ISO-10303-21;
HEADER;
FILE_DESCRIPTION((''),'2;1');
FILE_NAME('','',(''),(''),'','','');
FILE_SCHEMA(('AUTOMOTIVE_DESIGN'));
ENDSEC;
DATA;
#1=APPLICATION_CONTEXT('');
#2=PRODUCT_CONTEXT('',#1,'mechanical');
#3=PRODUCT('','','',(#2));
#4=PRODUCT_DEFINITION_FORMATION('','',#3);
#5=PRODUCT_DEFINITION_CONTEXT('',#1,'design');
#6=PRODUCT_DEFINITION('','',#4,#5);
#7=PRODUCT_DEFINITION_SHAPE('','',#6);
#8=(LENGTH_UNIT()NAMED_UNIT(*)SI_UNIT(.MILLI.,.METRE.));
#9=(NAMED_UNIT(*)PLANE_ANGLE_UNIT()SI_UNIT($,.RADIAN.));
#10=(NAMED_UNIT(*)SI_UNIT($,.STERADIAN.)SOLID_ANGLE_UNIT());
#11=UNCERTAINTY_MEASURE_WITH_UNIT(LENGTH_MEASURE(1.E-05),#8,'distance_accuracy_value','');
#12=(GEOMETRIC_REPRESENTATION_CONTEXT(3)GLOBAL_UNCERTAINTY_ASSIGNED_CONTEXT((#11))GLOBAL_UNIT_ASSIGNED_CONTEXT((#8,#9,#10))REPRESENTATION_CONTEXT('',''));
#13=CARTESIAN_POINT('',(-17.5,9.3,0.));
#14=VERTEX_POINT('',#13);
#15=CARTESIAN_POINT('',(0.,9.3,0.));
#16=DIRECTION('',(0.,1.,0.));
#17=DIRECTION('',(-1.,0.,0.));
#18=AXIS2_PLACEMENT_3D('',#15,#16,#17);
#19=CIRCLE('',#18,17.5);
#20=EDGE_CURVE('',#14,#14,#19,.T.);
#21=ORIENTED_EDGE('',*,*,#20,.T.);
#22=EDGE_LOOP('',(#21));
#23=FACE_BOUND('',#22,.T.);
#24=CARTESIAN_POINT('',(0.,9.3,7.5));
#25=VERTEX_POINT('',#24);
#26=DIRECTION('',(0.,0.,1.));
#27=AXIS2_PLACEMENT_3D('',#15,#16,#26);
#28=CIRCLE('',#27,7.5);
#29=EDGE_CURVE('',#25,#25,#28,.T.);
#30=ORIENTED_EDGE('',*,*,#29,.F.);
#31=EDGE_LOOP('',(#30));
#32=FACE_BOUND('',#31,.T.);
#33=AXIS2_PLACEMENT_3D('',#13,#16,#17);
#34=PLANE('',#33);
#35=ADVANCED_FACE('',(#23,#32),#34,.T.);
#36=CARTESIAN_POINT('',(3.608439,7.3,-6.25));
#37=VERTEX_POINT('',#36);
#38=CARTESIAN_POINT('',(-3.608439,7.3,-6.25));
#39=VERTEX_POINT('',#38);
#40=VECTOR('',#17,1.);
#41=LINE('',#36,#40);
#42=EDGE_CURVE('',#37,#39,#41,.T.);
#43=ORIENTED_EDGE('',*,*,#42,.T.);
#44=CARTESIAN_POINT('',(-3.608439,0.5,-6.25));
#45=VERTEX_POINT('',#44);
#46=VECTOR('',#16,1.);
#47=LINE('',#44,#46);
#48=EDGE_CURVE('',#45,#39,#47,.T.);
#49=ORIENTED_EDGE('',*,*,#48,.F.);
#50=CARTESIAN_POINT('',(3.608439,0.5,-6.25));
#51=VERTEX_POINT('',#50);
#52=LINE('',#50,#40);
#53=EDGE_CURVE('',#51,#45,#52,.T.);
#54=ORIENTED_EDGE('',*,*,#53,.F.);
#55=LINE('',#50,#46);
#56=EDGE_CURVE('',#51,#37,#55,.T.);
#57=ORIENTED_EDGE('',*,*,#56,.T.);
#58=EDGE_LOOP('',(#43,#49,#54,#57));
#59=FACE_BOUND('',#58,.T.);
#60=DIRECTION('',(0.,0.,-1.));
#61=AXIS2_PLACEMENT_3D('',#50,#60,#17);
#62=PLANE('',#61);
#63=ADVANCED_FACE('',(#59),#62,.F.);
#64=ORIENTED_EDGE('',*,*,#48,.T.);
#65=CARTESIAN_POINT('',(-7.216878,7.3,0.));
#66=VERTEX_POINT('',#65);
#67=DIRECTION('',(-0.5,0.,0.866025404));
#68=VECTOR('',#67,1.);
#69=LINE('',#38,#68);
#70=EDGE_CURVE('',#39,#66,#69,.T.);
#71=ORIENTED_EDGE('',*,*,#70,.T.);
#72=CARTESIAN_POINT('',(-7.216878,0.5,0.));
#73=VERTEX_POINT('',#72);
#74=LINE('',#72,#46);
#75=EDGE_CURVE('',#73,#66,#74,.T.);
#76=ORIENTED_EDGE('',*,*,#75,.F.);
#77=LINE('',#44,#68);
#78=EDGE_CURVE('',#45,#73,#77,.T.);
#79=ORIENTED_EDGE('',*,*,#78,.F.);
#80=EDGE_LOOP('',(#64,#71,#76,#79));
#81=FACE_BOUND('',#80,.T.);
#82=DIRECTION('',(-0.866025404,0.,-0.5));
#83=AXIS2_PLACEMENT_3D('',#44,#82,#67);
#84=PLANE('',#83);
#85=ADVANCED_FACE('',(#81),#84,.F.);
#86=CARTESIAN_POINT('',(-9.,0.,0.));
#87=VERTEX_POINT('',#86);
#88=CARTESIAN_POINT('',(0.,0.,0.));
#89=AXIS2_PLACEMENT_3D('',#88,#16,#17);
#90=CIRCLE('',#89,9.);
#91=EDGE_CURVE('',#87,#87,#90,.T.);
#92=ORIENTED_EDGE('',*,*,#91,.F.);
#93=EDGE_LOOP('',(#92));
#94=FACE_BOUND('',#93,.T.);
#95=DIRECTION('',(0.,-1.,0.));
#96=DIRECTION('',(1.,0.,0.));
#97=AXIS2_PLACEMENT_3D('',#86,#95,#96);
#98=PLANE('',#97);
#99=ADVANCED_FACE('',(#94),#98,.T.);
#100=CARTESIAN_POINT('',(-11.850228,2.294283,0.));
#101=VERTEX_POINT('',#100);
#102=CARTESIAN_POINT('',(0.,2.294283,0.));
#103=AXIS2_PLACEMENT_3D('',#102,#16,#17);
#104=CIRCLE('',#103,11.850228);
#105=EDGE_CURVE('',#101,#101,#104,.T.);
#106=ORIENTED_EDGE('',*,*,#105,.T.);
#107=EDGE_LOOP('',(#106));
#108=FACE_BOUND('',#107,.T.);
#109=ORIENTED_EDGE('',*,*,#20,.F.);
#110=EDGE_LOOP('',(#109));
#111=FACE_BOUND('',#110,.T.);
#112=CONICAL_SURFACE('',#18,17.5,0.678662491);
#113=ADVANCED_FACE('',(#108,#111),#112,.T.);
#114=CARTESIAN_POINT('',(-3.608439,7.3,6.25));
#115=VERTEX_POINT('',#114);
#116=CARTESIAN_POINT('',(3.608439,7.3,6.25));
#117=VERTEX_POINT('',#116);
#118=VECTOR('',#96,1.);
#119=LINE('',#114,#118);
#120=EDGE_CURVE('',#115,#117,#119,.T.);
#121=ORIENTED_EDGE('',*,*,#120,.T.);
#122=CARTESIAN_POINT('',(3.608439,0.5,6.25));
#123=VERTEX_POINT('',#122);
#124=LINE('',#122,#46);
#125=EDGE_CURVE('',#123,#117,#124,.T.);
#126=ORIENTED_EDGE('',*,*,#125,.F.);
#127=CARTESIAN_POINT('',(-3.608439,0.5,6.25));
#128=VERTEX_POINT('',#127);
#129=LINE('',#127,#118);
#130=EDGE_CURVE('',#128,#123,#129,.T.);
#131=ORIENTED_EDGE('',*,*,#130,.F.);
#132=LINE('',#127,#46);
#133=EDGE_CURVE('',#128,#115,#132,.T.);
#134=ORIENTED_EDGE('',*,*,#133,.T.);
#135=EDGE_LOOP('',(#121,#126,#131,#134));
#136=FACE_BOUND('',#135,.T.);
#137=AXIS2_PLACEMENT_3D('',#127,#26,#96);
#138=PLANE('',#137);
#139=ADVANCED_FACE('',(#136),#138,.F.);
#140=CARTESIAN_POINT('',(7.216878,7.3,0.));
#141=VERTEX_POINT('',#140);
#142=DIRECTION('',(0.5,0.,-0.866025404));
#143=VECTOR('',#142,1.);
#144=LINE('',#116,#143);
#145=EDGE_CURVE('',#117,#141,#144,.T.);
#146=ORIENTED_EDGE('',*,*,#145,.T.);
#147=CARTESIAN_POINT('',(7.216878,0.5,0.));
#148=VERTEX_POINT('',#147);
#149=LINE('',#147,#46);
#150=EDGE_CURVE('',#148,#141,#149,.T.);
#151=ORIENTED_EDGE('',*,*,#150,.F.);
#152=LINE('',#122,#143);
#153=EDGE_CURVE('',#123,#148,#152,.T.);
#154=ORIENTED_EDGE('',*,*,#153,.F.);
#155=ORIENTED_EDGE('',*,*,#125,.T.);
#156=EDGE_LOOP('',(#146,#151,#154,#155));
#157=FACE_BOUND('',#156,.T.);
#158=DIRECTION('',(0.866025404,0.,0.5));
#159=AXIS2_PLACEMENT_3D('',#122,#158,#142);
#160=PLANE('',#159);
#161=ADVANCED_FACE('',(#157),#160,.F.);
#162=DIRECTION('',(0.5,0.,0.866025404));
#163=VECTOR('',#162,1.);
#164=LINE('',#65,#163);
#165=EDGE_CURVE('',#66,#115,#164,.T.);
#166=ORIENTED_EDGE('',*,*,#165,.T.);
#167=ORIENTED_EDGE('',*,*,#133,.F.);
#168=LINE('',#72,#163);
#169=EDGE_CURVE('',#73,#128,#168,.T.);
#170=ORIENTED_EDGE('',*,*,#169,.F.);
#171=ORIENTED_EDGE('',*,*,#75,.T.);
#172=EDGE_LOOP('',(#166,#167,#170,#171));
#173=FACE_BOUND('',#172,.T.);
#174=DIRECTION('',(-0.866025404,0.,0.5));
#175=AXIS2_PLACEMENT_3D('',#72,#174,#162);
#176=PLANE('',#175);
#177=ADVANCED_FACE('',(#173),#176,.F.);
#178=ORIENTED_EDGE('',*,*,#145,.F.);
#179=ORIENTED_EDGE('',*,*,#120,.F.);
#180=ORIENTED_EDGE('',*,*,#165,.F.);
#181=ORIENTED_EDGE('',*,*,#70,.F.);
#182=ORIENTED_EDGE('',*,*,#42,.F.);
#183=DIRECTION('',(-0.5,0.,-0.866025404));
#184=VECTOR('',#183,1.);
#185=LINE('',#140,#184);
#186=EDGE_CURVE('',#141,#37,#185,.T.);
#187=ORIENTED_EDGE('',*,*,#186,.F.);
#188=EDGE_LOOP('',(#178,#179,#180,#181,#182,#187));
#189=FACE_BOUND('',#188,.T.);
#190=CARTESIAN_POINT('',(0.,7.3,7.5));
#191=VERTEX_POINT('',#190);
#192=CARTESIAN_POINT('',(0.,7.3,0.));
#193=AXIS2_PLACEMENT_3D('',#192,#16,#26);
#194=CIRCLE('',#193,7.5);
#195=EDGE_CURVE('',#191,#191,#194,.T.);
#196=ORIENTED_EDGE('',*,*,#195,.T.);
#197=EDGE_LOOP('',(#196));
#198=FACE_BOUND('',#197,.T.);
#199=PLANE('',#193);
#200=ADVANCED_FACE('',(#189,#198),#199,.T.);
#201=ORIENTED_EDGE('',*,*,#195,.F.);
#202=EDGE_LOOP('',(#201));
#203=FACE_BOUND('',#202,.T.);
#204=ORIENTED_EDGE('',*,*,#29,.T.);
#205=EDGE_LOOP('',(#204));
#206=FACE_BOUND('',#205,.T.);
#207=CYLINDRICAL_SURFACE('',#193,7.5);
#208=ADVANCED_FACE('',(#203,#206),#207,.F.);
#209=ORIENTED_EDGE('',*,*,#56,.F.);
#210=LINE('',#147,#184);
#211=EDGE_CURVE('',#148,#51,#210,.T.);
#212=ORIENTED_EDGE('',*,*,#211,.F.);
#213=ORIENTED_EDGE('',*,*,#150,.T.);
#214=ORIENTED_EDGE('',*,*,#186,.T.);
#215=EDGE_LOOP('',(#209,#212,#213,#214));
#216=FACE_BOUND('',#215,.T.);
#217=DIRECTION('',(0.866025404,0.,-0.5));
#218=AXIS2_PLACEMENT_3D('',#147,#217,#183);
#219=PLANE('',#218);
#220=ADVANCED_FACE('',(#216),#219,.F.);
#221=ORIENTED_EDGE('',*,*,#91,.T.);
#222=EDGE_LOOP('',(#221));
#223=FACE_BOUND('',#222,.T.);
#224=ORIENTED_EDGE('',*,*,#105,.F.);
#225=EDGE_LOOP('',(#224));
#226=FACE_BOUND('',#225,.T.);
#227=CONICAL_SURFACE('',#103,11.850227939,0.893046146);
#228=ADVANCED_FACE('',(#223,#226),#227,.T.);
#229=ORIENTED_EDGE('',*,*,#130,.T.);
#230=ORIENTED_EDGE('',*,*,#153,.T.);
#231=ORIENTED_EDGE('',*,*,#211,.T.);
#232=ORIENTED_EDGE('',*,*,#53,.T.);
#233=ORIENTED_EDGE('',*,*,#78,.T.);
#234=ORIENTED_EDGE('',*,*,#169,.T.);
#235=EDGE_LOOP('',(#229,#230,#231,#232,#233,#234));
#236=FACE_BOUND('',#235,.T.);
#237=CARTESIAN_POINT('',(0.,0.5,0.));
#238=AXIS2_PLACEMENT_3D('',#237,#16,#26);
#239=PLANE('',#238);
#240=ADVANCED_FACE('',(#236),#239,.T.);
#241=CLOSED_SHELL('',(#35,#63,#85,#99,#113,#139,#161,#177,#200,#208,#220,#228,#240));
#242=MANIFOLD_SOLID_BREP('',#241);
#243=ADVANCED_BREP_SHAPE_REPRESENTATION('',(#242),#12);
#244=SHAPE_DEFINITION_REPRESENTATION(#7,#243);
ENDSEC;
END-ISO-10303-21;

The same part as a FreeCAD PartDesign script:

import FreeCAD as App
import Part
import Sketcher
Q = App.Units.Quantity

doc = App.newDocument("Part")
params = doc.addObject("Spreadsheet::Sheet", "Params")
for row, (alias, value) in enumerate([
    ("sketch1_width", "9 mm"),
    ("sketch1_length", "9 mm"),
    ("sketch1_width2", "17.5 mm"),
    ("sketch1_height", "9.3 mm"),
    ("revolution_angle", "360 deg"),
    ("sketch2_diameter", "15 mm"),
    ("pocket1_length", "2 mm"),
    ("pocket2_length", "6.8 mm"),
], start=1):
    params.set(f"A{row}", alias)
    params.set(f"B{row}", "=" + value)
    params.setAlias(f"B{row}", alias)

body = doc.addObject("PartDesign::Body", "Body")

sketch1 = body.newObject("Sketcher::SketchObject", "Sketch")
sketch1.AttachmentSupport = (doc.getObject("XY_Plane"), [""])
sketch1.MapMode = "FlatFace"
sketch1.addGeometry([
    Part.LineSegment(App.Vector(0, 9.3, 0), App.Vector(-17.5, 9.3, 0)),
    Part.LineSegment(App.Vector(-17.5, 9.3, 0), App.Vector(-11.9, 2.3, 0)),
    Part.LineSegment(App.Vector(-11.9, 2.3, 0), App.Vector(-9, 0, 0)),
    Part.LineSegment(App.Vector(-9, 0, 0), App.Vector(0, 0, 0)),
    Part.LineSegment(App.Vector(0, 0, 0), App.Vector(0, 9.3, 0)),
], False)
sketch1.addConstraint([
    Sketcher.Constraint("Coincident", 0, 2, 1, 1),
    Sketcher.Constraint("Coincident", 1, 2, 2, 1),
    Sketcher.Constraint("Coincident", 2, 2, 3, 1),
    Sketcher.Constraint("Coincident", 3, 2, 4, 1),
    Sketcher.Constraint("Coincident", 4, 2, 0, 1),
    Sketcher.Constraint("Horizontal", 0),
    Sketcher.Constraint("Horizontal", 3),
    Sketcher.Constraint("Vertical", 4),
    Sketcher.Constraint("Coincident", 3, 2, -1, 1),
    Sketcher.Constraint("DistanceX", 3, 1, 3, 2, 9.0),
    Sketcher.Constraint("Distance", 1, 9.0),
    Sketcher.Constraint("DistanceX", 0, 2, 0, 1, 17.5),
    Sketcher.Constraint("DistanceY", 4, 1, 4, 2, 9.3),
    Sketcher.Constraint("Distance", 2, 3.658898),
])
sketch1.setExpression("Constraints[9]", "Params.sketch1_width")
sketch1.setExpression("Constraints[10]", "Params.sketch1_length")
sketch1.setExpression("Constraints[11]", "Params.sketch1_width2")
sketch1.setExpression("Constraints[12]", "Params.sketch1_height")
revolution = body.newObject("PartDesign::Revolution", "Revolution")
revolution.Profile = sketch1
revolution.ReferenceAxis = (sketch1, ["V_Axis"])
revolution.setExpression("Angle", "Params.revolution_angle")

sketch2 = body.newObject("Sketcher::SketchObject", "Sketch001")
sketch2.AttachmentSupport = (doc.getObject("XZ_Plane"), [""])
sketch2.MapMode = "FlatFace"
sketch2.AttachmentOffset = App.Placement(App.Vector(0, 0, -9.3), App.Rotation())
sketch2.addGeometry(Part.Circle(App.Vector(0, 0, 0), App.Vector(0, 0, 1), 8), False)
sketch2.addConstraint([
    Sketcher.Constraint("Coincident", 0, 3, -1, 1),
    Sketcher.Constraint("Diameter", 0, 15.0),
])
sketch2.setExpression("Constraints[1]", "Params.sketch2_diameter")
pocket1 = body.newObject("PartDesign::Pocket", "Pocket")
pocket1.Profile = sketch2
pocket1.setExpression("Length", "Params.pocket1_length")
pocket1.Reversed = True

sketch3 = body.newObject("Sketcher::SketchObject", "Sketch002")
sketch3.AttachmentSupport = (doc.getObject("XZ_Plane"), [""])
sketch3.MapMode = "FlatFace"
sketch3.AttachmentOffset = App.Placement(App.Vector(0, 0, -7.3), App.Rotation())
sketch3.addGeometry([
    Part.LineSegment(App.Vector(4, 6, 0), App.Vector(7, 0, 0)),
    Part.LineSegment(App.Vector(7, 0, 0), App.Vector(4, -6, 0)),
    Part.LineSegment(App.Vector(4, -6, 0), App.Vector(-4, -6, 0)),
    Part.LineSegment(App.Vector(-4, -6, 0), App.Vector(-7, 0, 0)),
    Part.LineSegment(App.Vector(-7, 0, 0), App.Vector(-4, 6, 0)),
    Part.LineSegment(App.Vector(-4, 6, 0), App.Vector(4, 6, 0)),
], False)
sketch3.addConstraint([
    Sketcher.Constraint("Coincident", 0, 2, 1, 1),
    Sketcher.Constraint("Coincident", 1, 2, 2, 1),
    Sketcher.Constraint("Coincident", 2, 2, 3, 1),
    Sketcher.Constraint("Coincident", 3, 2, 4, 1),
    Sketcher.Constraint("Coincident", 4, 2, 5, 1),
    Sketcher.Constraint("Coincident", 5, 2, 0, 1),
    Sketcher.Constraint("Horizontal", 2),
    Sketcher.Constraint("Horizontal", 5),
    Sketcher.Constraint("Symmetric", 0, 2, 3, 2, -1, 1),
    Sketcher.Constraint("Symmetric", 1, 2, 4, 2, -1, 1),
    Sketcher.Constraint("PointOnObject", 0, 2, -1),
    Sketcher.Constraint("Parallel", 0, 3),
    Sketcher.Constraint("Vertical", 2, 2, 4, 2),
    Sketcher.Constraint("Angle", 0, Q("-60 deg")),
    Sketcher.Constraint("DistanceY", 2, 2, 4, 2, 12.5),
    Sketcher.Constraint("DistanceX", 2, 2, 2, 1, 7.216878),
])
pocket2 = body.newObject("PartDesign::Pocket", "Pocket001")
pocket2.Profile = sketch3
pocket2.setExpression("Length", "Params.pocket2_length")
pocket2.Reversed = True

doc.recompute()
